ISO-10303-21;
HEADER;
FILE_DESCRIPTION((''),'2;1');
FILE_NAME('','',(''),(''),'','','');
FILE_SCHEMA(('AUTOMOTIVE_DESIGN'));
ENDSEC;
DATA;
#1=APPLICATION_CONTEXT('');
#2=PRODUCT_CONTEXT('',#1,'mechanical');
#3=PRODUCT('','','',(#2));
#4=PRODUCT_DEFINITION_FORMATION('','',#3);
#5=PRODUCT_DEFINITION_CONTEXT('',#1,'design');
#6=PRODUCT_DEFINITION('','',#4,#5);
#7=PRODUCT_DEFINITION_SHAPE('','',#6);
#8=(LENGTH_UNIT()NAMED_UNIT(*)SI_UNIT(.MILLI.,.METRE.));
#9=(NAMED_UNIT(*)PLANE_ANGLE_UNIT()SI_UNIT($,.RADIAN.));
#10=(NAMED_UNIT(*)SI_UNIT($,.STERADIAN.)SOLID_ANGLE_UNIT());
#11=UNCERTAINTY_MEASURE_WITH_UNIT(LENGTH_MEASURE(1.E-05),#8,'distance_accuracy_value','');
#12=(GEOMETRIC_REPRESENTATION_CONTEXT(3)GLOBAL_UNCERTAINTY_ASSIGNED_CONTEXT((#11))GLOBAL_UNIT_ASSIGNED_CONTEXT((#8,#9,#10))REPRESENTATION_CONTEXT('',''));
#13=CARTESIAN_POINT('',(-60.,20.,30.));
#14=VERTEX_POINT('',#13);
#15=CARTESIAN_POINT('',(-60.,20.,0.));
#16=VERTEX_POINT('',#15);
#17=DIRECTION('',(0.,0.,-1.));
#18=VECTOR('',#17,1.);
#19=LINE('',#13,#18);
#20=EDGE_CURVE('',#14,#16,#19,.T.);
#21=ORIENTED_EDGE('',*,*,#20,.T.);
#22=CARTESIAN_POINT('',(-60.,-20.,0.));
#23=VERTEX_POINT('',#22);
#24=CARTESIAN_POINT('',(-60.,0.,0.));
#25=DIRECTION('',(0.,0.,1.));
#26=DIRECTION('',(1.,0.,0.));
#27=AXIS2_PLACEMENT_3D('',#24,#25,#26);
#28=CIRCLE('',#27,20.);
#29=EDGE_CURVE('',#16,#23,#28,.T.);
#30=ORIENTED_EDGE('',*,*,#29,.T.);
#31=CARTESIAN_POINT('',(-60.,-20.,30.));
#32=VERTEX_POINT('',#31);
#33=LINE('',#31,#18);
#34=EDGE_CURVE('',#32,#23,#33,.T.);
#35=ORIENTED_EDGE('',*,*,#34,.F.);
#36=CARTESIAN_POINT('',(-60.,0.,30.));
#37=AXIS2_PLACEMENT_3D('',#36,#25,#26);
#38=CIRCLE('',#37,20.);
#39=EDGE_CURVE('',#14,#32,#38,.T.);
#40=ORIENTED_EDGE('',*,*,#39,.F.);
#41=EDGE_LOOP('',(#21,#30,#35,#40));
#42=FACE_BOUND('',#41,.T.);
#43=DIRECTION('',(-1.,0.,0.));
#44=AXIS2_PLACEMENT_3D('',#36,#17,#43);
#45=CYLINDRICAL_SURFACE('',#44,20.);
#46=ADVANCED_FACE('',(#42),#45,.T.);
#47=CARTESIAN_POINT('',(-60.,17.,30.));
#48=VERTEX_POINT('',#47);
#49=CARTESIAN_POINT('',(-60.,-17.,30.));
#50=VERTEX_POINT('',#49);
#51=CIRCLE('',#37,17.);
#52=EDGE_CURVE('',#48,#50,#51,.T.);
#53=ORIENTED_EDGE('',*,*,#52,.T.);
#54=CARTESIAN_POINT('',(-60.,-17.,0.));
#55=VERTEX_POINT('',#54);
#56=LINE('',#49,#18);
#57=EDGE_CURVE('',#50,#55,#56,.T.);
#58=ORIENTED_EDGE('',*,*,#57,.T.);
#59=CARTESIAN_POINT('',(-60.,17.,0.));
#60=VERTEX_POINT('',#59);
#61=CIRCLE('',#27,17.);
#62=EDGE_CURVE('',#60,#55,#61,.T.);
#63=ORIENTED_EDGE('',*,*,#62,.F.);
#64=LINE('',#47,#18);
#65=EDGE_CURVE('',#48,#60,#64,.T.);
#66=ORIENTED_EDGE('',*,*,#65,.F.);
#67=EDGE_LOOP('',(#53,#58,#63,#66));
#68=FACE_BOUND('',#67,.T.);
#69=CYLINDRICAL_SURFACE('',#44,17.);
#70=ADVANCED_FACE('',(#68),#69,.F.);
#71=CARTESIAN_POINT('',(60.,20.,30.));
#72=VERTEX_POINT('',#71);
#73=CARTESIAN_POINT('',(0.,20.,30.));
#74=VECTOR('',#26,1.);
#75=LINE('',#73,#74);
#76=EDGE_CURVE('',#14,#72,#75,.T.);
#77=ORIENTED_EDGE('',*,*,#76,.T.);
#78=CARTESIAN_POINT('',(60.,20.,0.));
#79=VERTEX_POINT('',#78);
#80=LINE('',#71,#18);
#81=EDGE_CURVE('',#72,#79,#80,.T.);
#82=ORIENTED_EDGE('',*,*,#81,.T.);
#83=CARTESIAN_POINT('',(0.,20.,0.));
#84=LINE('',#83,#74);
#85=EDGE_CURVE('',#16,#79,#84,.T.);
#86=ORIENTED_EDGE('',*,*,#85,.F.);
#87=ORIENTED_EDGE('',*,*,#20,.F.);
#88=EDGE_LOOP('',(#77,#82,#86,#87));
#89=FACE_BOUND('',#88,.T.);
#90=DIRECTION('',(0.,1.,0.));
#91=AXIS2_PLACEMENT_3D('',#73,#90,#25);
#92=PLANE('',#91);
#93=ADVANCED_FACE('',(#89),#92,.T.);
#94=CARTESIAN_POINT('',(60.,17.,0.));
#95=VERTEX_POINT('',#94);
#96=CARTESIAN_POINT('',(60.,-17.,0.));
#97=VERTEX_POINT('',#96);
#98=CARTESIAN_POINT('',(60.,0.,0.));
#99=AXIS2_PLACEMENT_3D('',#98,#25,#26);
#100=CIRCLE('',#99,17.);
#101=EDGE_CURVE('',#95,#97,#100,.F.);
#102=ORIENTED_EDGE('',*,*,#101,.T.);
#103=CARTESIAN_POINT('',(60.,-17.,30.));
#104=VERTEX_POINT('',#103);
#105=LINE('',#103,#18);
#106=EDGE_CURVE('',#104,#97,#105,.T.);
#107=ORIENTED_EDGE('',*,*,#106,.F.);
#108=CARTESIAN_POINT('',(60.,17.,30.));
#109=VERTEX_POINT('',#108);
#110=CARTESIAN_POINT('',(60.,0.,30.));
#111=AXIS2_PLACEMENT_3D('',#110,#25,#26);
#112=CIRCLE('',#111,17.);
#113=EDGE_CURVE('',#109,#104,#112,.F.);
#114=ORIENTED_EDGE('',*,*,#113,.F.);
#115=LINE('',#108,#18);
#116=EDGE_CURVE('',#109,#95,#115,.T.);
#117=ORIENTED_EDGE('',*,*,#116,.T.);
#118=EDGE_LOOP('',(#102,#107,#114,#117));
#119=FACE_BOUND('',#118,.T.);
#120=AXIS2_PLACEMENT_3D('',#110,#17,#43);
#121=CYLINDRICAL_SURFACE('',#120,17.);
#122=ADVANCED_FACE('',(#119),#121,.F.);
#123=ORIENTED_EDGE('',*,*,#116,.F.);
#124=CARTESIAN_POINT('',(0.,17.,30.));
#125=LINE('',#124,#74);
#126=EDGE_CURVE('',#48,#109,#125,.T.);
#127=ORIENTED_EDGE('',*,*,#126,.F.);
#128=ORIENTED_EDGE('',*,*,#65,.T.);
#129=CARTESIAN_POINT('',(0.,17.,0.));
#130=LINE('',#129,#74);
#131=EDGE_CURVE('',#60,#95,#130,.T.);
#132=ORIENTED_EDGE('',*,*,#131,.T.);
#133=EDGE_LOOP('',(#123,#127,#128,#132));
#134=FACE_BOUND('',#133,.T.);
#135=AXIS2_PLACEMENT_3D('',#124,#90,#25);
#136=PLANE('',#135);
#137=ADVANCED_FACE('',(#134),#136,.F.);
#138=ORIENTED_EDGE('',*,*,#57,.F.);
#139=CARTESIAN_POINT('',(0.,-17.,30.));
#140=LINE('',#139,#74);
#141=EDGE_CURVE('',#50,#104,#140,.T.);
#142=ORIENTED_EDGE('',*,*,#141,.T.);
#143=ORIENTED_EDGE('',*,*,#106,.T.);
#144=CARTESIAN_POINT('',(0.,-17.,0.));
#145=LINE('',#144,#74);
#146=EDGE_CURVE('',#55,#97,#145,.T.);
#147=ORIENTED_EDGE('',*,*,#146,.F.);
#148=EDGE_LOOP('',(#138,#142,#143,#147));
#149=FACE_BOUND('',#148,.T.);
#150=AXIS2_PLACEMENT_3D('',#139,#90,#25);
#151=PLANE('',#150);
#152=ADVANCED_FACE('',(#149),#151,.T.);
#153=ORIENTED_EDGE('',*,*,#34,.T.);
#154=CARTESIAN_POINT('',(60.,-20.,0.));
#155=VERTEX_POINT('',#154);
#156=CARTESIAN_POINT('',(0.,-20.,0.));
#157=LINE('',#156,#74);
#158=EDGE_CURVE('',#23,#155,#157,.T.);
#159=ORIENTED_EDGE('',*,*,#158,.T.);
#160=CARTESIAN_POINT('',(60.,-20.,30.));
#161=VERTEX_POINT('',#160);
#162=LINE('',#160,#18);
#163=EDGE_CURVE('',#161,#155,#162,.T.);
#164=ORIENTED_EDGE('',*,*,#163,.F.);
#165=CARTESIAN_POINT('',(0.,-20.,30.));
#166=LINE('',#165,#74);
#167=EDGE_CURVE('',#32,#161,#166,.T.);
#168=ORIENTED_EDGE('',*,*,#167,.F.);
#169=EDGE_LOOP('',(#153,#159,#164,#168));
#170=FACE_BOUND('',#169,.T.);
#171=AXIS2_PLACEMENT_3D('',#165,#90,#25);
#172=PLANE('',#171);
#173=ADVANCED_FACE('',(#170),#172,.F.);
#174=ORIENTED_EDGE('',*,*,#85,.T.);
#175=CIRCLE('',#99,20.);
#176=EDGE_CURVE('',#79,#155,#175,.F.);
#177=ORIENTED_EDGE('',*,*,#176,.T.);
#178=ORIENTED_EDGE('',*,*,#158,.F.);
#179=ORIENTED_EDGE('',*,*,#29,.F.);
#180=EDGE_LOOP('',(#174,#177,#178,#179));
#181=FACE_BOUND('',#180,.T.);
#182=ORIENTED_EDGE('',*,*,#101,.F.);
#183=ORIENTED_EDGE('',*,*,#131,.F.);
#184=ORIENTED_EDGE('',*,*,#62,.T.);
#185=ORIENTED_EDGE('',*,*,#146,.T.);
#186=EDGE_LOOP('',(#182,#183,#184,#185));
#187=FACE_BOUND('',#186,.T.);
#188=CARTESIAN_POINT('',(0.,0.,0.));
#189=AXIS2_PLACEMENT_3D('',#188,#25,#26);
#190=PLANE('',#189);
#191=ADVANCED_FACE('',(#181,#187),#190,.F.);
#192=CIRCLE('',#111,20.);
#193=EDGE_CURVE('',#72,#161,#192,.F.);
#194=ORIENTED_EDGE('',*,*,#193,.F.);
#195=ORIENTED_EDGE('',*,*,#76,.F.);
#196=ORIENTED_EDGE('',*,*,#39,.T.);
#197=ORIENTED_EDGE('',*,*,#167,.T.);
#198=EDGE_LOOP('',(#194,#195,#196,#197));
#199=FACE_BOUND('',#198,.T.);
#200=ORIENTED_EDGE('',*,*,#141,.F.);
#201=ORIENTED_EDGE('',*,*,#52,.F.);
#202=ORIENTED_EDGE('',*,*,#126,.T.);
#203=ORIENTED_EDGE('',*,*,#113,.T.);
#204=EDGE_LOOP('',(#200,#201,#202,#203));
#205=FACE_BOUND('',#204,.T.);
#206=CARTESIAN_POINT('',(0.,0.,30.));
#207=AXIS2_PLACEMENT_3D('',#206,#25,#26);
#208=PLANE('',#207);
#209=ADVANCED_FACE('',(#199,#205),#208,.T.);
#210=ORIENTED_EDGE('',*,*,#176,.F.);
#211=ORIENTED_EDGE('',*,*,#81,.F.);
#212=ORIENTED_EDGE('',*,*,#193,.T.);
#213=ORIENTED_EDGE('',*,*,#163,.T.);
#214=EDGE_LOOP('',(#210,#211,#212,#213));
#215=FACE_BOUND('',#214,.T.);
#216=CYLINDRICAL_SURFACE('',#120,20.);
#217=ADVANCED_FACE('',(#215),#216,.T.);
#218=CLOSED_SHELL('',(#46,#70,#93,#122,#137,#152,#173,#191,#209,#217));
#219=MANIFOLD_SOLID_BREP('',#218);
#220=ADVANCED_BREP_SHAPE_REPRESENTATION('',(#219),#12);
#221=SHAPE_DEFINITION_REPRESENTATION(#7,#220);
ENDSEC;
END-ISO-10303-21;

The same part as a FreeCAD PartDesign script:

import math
import FreeCAD as App
import Part
import Sketcher
from FreeCAD import Vector
Q = App.Units.Quantity

doc = App.newDocument("Part")
body = doc.addObject("PartDesign::Body", "Body")

sketch1 = doc.addObject("Sketcher::SketchObject", "Sketch")
body.addObject(sketch1)
sketch1.AttachmentSupport = (doc.XY_Plane, [""])
sketch1.MapMode = "FlatFace"
sketch1.addGeometry(Part.ArcOfCircle(Part.Circle(Vector(60, 0, 0), Vector(0, 0, 1), 20), math.radians(-90), math.radians(90)), False)
sketch1.addGeometry(Part.LineSegment(Vector(60, 20, 0), Vector(-60, 20, 0)), False)
sketch1.addGeometry(Part.ArcOfCircle(Part.Circle(Vector(-60, 0, 0), Vector(0, 0, 1), 20), math.radians(90), math.radians(270)), False)
sketch1.addGeometry(Part.LineSegment(Vector(-60, -20, 0), Vector(60, -20, 0)), False)
sketch1.addGeometry(Part.ArcOfCircle(Part.Circle(Vector(-60, 0, 0), Vector(0, 0, 1), 17), math.radians(90), math.radians(270)), False)
sketch1.addGeometry(Part.LineSegment(Vector(-60, 17, 0), Vector(60, 17, 0)), False)
sketch1.addGeometry(Part.ArcOfCircle(Part.Circle(Vector(60, 0, 0), Vector(0, 0, 1), 17), math.radians(-90), math.radians(90)), False)
sketch1.addGeometry(Part.LineSegment(Vector(60, -17, 0), Vector(-60, -17, 0)), False)
sketch1.addConstraint(Sketcher.Constraint("Tangent", 0, 2, 1, 1))
sketch1.addConstraint(Sketcher.Constraint("Tangent", 1, 2, 2, 1))
sketch1.addConstraint(Sketcher.Constraint("Tangent", 2, 2, 3, 1))
sketch1.addConstraint(Sketcher.Constraint("Tangent", 3, 2, 0, 1))
sketch1.addConstraint(Sketcher.Constraint("Tangent", 4, 1, 5, 1))
sketch1.addConstraint(Sketcher.Constraint("Tangent", 5, 2, 6, 2))
sketch1.addConstraint(Sketcher.Constraint("Tangent", 6, 1, 7, 1))
sketch1.addConstraint(Sketcher.Constraint("Tangent", 7, 2, 4, 2))
sketch1.addConstraint(Sketcher.Constraint("Horizontal", 1))
sketch1.addConstraint(Sketcher.Constraint("Horizontal", 3))
sketch1.addConstraint(Sketcher.Constraint("Horizontal", 5))
sketch1.addConstraint(Sketcher.Constraint("Horizontal", 7))
sketch1.addConstraint(Sketcher.Constraint("Coincident", 4, 3, 2, 3))
sketch1.addConstraint(Sketcher.Constraint("Symmetric", 0, 3, 2, 3, -1, 1))
sketch1.addConstraint(Sketcher.Constraint("Vertical", 6, 3, 0, 2))
sketch1.addConstraint(Sketcher.Constraint("Radius", 0, Q("20 mm")))
sketch1.addConstraint(Sketcher.Constraint("Radius", 4, Q("17 mm")))
sketch1.addConstraint(Sketcher.Constraint("DistanceX", 1, 2, 1, 1, Q("120 mm")))
pad1 = doc.addObject("PartDesign::Pad", "Pad")
body.addObject(pad1)
pad1.Profile = sketch1
pad1.Length = 30

doc.recompute()
